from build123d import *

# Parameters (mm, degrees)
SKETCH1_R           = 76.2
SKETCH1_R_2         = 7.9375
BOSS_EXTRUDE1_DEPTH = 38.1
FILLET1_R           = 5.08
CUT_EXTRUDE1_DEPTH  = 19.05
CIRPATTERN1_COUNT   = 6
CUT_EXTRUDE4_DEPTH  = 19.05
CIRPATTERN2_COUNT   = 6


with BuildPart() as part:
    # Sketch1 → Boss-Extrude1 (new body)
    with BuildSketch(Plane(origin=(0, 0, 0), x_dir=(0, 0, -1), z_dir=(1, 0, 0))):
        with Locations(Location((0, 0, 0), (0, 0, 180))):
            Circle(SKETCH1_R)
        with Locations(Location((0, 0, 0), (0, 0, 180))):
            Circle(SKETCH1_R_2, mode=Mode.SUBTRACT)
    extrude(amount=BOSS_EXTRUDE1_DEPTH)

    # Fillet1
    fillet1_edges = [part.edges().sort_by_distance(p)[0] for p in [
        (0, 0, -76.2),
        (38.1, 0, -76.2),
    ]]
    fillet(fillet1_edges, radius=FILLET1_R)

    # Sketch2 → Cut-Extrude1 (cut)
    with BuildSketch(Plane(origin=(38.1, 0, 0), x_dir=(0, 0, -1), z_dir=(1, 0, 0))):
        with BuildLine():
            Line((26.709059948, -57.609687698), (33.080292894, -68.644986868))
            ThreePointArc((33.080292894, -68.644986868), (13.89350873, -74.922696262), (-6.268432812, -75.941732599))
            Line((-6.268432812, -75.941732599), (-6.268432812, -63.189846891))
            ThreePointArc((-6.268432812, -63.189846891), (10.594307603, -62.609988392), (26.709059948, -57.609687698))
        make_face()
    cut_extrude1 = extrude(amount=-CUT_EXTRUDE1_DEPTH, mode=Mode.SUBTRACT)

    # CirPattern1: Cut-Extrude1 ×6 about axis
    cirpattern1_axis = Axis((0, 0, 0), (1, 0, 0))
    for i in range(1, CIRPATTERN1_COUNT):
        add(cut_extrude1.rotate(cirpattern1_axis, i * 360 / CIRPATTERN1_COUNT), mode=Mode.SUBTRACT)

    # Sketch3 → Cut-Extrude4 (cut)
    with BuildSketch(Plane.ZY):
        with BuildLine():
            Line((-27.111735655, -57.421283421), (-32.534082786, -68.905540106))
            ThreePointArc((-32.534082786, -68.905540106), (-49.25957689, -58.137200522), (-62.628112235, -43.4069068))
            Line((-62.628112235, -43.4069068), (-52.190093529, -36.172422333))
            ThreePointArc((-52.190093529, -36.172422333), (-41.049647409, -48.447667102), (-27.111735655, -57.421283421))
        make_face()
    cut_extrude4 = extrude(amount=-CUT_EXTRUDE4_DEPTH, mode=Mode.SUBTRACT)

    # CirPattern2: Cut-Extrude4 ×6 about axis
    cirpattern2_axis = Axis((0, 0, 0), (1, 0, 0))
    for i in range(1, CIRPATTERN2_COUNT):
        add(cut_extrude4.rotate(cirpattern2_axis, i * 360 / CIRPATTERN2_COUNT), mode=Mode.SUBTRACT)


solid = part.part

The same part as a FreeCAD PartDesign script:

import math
import FreeCAD as App
import Part
import Sketcher
from FreeCAD import Vector
Q = App.Units.Quantity


def edges_at(feature, points):
    """Names of the edges that pass closest to the given points."""
    edges = feature.Shape.Edges
    near = lambda p: min(range(len(edges)), key=lambda i: edges[i].distToShape(Part.Vertex(*p))[0])
    return sorted({f"Edge{near(p) + 1}" for p in points})

doc = App.newDocument("Part")
body = doc.addObject("PartDesign::Body", "Body")

# Sketch on YZ plane
sketch1 = body.newObject("Sketcher::SketchObject", "Sketch")
sketch1.AttachmentSupport = (doc.getObject("YZ_Plane"), [""])
sketch1.MapMode = "FlatFace"
sketch1.addGeometry([
    Part.Circle(Vector(0, 0, 0), Vector(0, 0, 1), 76),
    Part.Circle(Vector(0, 0, 0), Vector(0, 0, 1), 8),
], False)
sketch1.addConstraint([
    Sketcher.Constraint("Coincident", 0, 3, -1, 1),
    Sketcher.Constraint("Coincident", 1, 3, -1, 1),
    Sketcher.Constraint("Diameter", 0, Q("6 in")),
    Sketcher.Constraint("Diameter", 1, Q("0.625 in")),
])
pad1 = body.newObject("PartDesign::Pad", "Pad")
pad1.Profile = sketch1
pad1.Length = Q("1.5 in")
doc.recompute()

fillet = body.newObject("PartDesign::Fillet", "Fillet")
fillet.Base = (pad1, edges_at(pad1, [(0, 0, -76.2), (38.1, 0, -76.2)]))
fillet.Radius = Q("0.2 in")

# Sketch on YZ plane
sketch2 = body.newObject("Sketcher::SketchObject", "Sketch001")
sketch2.AttachmentSupport = (doc.getObject("YZ_Plane"), [""])
sketch2.MapMode = "FlatFace"
sketch2.AttachmentOffset = App.Placement(Vector(0, 0, 1.5 * 25.4), App.Rotation())
sketch2.addGeometry([
    Part.LineSegment(Vector(-69, -33, 0), Vector(-58, -27, 0)),
    Part.ArcOfCircle(Part.Circle(Vector(0, 0, 0), Vector(0, 0, 1), 63), math.radians(174), math.radians(205)),
    Part.LineSegment(Vector(-63, 6, 0), Vector(-76, 6, 0)),
    Part.ArcOfCircle(Part.Circle(Vector(0, 0, 0), Vector(0, 0, 1), 76), math.radians(175), math.radians(206)),
], False)
sketch2.addConstraint([
    Sketcher.Constraint("Coincident", 0, 2, 1, 2),
    Sketcher.Constraint("Coincident", 1, 1, 2, 1),
    Sketcher.Constraint("Coincident", 2, 2, 3, 1),
    Sketcher.Constraint("Coincident", 3, 2, 0, 1),
    Sketcher.Constraint("Horizontal", 2),
    Sketcher.Constraint("Coincident", 1, 3, -1, 1),
    Sketcher.Constraint("Coincident", 3, 3, -1, 1),
    Sketcher.Constraint("Radius", 3, Q("3 in")),
    Sketcher.Constraint("Radius", 1, Q("2.5 in")),
    Sketcher.Constraint("Angle", 0, Q("30 deg")),
    Sketcher.Constraint("DistanceX", 2, 2, 2, 1, 12.751886),
    Sketcher.Constraint("DistanceY", 0, 2, -1, 1, 26.70906),
])
pocket1 = body.newObject("PartDesign::Pocket", "Pocket")
pocket1.Profile = sketch2
pocket1.Length = Q("0.75 in")
doc.recompute()

polarpattern = body.newObject("PartDesign::PolarPattern", "PolarPattern")
polarpattern.Originals = [pocket1]
polarpattern.Axis = (doc.getObject("X_Axis"), [""])
polarpattern.Angle = 360
polarpattern.Occurrences = 6
body.Tip = polarpattern

# Sketch on YZ plane
sketch3 = body.newObject("Sketcher::SketchObject", "Sketch002")
sketch3.AttachmentSupport = (doc.getObject("YZ_Plane"), [""])
sketch3.MapMode = "FlatFace"
sketch3.addGeometry([
    Part.LineSegment(Vector(-69, -33, 0), Vector(-57, -27, 0)),
    Part.ArcOfCircle(Part.Circle(Vector(0, 0, 0), Vector(0, 0, 1), 63), math.radians(-155), math.radians(-125)),
    Part.LineSegment(Vector(-36, -52, 0), Vector(-43, -63, 0)),
    Part.ArcOfCircle(Part.Circle(Vector(0, 0, 0), Vector(0, 0, 1), 76), math.radians(-155), math.radians(-125)),
], False)
sketch3.addConstraint([
    Sketcher.Constraint("Coincident", 0, 2, 1, 1),
    Sketcher.Constraint("Coincident", 1, 2, 2, 1),
    Sketcher.Constraint("Coincident", 2, 2, 3, 2),
    Sketcher.Constraint("Coincident", 3, 1, 0, 1),
    Sketcher.Constraint("Coincident", 1, 3, -1, 1),
    Sketcher.Constraint("Coincident", 3, 3, -1, 1),
    Sketcher.Constraint("Radius", 3, Q("3 in")),
    Sketcher.Constraint("Radius", 1, Q("2.5 in")),
    Sketcher.Constraint("DistanceX", 3, 1, -1, 1, 68.90554),
    Sketcher.Constraint("DistanceX", 0, 2, 1, 2, 21.248861),
    Sketcher.Constraint("DistanceY", 2, 2, 1, 2, 10.438019),
    Sketcher.Constraint("DistanceY", 1, 2, 3, 1, 19.656011),
])
pocket2 = body.newObject("PartDesign::Pocket", "Pocket001")
pocket2.Profile = sketch3
pocket2.Length = Q("0.75 in")
pocket2.Reversed = True
doc.recompute()

polarpattern2 = body.newObject("PartDesign::PolarPattern", "PolarPattern001")
polarpattern2.Originals = [pocket2]
polarpattern2.Axis = (doc.getObject("X_Axis"), [""])
polarpattern2.Angle = 360
polarpattern2.Occurrences = 6
body.Tip = polarpattern2

doc.recompute()
